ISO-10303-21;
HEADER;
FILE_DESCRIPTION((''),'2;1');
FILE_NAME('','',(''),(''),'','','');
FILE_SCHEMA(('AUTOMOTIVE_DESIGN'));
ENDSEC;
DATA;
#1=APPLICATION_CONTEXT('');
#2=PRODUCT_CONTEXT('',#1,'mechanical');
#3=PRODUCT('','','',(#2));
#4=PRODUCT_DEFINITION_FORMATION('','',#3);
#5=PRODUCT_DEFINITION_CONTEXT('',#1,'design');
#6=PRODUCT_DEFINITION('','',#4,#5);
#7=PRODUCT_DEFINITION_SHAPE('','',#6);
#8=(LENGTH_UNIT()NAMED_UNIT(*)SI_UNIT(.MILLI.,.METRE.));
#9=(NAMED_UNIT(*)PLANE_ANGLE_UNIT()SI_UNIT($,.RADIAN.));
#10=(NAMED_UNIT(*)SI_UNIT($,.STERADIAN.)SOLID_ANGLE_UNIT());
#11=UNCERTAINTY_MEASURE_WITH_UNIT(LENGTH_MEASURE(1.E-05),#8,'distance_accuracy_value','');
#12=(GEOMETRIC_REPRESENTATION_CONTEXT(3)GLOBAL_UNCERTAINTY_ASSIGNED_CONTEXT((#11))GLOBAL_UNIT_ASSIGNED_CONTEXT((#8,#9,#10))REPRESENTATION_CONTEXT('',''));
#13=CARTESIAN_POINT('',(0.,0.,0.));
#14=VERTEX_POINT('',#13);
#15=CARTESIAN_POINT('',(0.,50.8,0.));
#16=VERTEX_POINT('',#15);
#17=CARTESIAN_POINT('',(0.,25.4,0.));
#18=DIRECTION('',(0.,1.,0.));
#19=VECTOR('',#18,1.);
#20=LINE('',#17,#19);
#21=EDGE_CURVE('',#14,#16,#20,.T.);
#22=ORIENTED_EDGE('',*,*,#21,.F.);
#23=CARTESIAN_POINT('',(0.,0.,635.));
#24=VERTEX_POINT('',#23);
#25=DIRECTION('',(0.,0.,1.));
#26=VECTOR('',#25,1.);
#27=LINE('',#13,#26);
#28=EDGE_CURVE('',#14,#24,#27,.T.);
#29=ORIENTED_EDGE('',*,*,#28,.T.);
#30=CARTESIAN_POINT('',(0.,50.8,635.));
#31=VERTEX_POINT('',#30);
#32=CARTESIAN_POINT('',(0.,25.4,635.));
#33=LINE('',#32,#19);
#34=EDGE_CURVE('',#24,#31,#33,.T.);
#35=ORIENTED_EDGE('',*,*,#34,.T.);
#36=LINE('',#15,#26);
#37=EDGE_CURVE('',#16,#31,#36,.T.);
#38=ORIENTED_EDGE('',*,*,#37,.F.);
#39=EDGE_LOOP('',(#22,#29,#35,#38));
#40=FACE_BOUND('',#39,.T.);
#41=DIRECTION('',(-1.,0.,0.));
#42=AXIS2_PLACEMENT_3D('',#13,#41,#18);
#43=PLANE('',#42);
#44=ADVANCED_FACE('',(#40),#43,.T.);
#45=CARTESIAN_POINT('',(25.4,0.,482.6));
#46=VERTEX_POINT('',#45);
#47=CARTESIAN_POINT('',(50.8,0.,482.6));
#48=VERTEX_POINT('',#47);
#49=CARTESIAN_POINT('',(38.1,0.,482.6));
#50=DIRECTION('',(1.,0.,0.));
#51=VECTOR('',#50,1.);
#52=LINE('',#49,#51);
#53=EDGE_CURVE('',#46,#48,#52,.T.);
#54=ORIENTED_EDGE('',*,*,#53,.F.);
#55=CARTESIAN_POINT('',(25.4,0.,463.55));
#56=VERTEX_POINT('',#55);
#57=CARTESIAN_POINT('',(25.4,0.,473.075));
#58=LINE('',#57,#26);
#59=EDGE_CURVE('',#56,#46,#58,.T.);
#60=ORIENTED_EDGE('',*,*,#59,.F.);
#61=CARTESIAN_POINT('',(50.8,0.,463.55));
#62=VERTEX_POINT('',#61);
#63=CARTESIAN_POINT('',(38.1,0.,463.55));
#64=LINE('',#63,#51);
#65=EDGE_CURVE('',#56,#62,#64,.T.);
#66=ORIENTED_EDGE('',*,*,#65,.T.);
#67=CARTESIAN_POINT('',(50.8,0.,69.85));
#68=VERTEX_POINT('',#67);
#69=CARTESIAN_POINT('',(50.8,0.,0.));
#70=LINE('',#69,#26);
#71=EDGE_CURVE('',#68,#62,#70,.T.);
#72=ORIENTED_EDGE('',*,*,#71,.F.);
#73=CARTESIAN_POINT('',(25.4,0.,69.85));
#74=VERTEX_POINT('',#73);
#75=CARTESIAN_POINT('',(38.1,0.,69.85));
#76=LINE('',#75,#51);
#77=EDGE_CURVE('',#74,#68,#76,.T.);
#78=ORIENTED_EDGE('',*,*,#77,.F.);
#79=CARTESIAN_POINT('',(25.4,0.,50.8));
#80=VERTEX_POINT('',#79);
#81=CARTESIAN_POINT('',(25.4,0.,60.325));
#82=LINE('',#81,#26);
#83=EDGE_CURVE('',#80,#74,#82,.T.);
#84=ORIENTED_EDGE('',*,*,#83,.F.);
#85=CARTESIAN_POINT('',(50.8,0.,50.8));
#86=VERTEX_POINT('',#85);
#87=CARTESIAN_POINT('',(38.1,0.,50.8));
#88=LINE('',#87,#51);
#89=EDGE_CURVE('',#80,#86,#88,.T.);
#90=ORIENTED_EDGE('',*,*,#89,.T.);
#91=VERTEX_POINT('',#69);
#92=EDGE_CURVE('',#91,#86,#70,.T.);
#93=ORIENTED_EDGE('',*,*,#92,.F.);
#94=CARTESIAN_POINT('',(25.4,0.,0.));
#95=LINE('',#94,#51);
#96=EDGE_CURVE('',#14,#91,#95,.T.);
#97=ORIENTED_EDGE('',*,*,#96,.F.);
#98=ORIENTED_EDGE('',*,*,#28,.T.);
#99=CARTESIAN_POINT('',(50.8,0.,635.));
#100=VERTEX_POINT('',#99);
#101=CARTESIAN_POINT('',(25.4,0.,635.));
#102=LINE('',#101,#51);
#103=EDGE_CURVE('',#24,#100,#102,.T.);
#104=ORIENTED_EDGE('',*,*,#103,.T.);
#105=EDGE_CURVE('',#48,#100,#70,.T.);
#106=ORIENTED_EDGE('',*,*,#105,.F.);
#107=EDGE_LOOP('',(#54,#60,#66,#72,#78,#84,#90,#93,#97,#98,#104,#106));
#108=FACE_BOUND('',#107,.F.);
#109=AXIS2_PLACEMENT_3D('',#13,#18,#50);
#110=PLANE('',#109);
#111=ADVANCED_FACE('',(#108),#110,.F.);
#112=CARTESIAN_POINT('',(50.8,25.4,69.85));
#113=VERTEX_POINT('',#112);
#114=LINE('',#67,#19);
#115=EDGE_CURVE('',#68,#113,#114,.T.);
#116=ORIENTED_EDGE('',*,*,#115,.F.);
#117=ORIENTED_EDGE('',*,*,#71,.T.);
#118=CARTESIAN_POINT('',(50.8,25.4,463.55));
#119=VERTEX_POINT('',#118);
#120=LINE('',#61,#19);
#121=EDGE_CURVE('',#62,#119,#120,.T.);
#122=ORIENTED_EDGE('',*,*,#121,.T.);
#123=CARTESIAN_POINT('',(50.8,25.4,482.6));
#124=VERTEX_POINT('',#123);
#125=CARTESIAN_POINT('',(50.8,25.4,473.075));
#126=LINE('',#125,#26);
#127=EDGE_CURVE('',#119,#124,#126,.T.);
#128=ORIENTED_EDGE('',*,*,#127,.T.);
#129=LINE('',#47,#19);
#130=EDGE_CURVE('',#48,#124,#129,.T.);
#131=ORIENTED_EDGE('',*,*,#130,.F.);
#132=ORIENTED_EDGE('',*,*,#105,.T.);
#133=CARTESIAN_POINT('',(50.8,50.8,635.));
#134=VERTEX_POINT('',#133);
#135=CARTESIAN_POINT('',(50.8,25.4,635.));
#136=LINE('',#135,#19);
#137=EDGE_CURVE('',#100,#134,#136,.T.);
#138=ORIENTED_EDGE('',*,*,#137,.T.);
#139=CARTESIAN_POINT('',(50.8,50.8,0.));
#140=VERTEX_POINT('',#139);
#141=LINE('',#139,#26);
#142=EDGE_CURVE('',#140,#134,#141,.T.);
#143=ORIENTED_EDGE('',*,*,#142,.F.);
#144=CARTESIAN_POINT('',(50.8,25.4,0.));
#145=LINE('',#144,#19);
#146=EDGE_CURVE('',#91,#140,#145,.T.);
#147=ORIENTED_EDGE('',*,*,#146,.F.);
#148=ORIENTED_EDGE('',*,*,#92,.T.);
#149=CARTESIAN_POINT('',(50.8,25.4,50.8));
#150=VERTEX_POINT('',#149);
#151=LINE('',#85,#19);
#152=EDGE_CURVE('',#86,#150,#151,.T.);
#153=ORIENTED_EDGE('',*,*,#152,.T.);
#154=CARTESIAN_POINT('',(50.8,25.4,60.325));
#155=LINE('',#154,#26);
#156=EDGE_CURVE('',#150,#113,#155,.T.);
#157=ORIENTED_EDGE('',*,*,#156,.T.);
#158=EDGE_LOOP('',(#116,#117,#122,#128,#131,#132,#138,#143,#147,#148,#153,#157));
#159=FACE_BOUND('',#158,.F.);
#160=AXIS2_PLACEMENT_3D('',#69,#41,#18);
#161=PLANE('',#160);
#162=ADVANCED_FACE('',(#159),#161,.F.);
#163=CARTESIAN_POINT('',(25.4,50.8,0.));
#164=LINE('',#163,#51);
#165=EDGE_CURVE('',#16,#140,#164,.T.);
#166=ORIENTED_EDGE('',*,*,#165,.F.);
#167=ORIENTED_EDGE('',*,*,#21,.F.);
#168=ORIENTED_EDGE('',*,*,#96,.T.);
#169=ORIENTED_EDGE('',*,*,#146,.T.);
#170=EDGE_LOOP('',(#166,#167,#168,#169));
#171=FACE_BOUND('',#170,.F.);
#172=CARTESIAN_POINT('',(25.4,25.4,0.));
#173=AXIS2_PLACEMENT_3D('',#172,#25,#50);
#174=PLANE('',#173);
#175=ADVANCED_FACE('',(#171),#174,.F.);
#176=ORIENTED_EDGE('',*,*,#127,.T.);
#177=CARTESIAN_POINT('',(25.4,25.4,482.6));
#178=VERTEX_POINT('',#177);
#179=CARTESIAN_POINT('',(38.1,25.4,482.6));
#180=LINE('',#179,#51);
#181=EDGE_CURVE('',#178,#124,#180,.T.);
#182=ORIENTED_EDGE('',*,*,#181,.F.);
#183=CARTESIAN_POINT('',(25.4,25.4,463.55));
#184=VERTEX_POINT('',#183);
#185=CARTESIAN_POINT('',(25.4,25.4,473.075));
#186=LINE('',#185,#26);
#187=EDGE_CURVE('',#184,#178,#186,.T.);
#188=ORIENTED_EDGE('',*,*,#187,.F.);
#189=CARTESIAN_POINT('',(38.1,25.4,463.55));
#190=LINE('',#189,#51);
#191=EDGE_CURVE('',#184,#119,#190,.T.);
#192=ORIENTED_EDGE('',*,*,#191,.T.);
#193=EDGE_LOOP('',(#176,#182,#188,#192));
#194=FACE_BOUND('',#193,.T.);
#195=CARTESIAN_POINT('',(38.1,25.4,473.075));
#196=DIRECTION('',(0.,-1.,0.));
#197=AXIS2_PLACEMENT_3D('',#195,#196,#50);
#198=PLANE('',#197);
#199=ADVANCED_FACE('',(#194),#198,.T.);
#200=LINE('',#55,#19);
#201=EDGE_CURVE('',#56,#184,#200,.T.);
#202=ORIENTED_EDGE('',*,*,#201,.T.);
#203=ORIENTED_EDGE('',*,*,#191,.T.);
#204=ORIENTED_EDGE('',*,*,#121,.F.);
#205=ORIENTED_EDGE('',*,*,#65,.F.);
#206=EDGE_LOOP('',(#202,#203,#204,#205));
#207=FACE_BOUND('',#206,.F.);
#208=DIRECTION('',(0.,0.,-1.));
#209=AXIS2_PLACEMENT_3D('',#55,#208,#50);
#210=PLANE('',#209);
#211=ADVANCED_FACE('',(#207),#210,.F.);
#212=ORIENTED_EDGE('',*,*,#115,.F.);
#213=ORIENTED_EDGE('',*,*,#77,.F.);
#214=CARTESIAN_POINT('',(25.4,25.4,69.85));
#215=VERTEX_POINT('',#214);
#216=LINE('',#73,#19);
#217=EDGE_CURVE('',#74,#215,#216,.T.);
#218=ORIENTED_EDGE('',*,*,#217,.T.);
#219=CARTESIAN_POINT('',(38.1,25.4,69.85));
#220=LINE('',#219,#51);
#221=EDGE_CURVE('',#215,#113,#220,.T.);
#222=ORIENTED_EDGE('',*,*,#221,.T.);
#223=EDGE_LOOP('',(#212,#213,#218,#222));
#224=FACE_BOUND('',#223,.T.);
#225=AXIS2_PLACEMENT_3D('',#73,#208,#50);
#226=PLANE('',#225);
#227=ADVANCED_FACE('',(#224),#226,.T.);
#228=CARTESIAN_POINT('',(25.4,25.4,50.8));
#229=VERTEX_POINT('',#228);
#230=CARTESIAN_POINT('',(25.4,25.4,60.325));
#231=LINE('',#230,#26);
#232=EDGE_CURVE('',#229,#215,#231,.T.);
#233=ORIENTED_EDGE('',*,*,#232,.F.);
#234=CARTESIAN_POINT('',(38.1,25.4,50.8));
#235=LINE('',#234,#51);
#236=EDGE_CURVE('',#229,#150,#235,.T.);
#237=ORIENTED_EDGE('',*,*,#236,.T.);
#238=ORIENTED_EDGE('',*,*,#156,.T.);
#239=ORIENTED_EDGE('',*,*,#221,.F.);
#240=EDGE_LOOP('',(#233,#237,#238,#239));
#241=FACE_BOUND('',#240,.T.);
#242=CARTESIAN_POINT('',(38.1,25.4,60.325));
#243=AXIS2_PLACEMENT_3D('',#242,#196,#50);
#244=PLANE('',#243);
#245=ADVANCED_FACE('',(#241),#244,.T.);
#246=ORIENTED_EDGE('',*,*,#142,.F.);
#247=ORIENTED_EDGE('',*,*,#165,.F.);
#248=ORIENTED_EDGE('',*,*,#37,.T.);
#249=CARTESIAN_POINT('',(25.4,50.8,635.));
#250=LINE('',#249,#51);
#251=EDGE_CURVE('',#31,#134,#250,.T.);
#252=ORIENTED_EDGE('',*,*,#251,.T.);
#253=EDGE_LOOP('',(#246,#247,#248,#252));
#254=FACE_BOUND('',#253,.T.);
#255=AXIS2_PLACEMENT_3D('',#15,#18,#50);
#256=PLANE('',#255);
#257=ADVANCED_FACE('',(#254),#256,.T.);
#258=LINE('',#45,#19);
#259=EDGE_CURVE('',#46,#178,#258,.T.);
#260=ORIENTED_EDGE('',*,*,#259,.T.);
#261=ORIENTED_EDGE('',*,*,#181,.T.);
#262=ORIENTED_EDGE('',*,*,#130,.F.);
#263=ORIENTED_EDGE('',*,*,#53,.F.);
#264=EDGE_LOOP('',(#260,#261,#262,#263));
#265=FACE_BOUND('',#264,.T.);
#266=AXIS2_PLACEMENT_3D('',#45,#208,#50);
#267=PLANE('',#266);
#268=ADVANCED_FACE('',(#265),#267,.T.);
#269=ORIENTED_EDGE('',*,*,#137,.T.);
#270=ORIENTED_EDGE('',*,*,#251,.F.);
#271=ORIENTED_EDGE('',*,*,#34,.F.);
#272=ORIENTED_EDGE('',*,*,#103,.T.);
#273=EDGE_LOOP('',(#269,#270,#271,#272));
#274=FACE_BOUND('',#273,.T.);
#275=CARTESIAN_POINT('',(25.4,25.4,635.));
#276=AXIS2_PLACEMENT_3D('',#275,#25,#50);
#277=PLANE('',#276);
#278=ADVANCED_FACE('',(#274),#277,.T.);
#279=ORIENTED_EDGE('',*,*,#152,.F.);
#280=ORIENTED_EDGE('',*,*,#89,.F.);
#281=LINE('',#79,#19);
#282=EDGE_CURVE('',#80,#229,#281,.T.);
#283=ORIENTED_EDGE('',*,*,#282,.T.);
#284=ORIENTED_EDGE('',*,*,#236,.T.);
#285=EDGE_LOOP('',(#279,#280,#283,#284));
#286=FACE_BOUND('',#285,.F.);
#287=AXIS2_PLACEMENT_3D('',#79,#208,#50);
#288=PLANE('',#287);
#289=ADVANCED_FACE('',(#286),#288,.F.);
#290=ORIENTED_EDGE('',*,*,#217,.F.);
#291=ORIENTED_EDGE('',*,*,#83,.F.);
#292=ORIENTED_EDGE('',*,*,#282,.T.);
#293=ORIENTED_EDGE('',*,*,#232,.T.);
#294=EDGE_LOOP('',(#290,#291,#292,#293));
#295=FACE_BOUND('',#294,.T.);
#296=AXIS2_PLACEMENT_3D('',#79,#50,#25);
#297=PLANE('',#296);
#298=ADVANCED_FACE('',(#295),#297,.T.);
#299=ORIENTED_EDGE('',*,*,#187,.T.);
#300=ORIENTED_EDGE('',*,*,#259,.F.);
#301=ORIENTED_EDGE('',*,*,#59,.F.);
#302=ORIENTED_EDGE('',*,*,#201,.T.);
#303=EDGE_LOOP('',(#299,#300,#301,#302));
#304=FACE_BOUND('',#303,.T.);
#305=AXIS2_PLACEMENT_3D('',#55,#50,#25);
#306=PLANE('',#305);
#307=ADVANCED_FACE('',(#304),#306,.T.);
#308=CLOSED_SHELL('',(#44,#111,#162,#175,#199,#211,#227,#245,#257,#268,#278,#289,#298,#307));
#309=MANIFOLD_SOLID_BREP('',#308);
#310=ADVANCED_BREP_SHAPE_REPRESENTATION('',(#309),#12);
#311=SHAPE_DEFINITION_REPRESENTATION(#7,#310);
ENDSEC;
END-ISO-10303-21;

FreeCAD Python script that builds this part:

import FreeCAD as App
import Part
import Sketcher
from FreeCAD import Vector
Q = App.Units.Quantity

doc = App.newDocument("Part")
body = doc.addObject("PartDesign::Body", "Body")

# Sketch on XY plane
sketch1 = body.newObject("Sketcher::SketchObject", "Sketch")
sketch1.AttachmentSupport = (doc.getObject("XY_Plane"), [""])
sketch1.MapMode = "FlatFace"
sketch1.addGeometry(Part.LineSegment(Vector(0, 51, 0), Vector(0, 0, 0)), False)
sketch1.addGeometry(Part.LineSegment(Vector(0, 0, 0), Vector(51, 0, 0)), False)
sketch1.addGeometry(Part.LineSegment(Vector(51, 0, 0), Vector(51, 51, 0)), False)
sketch1.addGeometry(Part.LineSegment(Vector(51, 51, 0), Vector(0, 51, 0)), False)
sketch1.addConstraint(Sketcher.Constraint("Coincident", 0, 2, 1, 1))
sketch1.addConstraint(Sketcher.Constraint("Coincident", 1, 2, 2, 1))
sketch1.addConstraint(Sketcher.Constraint("Coincident", 2, 2, 3, 1))
sketch1.addConstraint(Sketcher.Constraint("Coincident", 3, 2, 0, 1))
sketch1.addConstraint(Sketcher.Constraint("Vertical", 0))
sketch1.addConstraint(Sketcher.Constraint("Horizontal", 1))
sketch1.addConstraint(Sketcher.Constraint("Vertical", 2))
sketch1.addConstraint(Sketcher.Constraint("Horizontal", 3))
sketch1.addConstraint(Sketcher.Constraint("Coincident", 0, 2, -1, 1))
sketch1.addConstraint(Sketcher.Constraint("Equal", 3, 0))
sketch1.addConstraint(Sketcher.Constraint("DistanceX", 1, 1, 1, 2, Q("2 in")))
pad1 = body.newObject("PartDesign::Pad", "Pad")
pad1.Profile = sketch1
pad1.Length = Q("25 in")

# Sketch on XZ plane
sketch2 = body.newObject("Sketcher::SketchObject", "Sketch001")
sketch2.AttachmentSupport = (doc.getObject("XZ_Plane"), [""])
sketch2.MapMode = "FlatFace"
sketch2.addGeometry(Part.LineSegment(Vector(25, 70, 0), Vector(25, 51, 0)), False)
sketch2.addGeometry(Part.LineSegment(Vector(25, 51, 0), Vector(51, 51, 0)), False)
sketch2.addGeometry(Part.LineSegment(Vector(51, 51, 0), Vector(51, 70, 0)), False)
sketch2.addGeometry(Part.LineSegment(Vector(51, 70, 0), Vector(25, 70, 0)), False)
sketch2.addGeometry(Part.LineSegment(Vector(25, 483, 0), Vector(25, 464, 0)), False)
sketch2.addGeometry(Part.LineSegment(Vector(25, 464, 0), Vector(51, 464, 0)), False)
sketch2.addGeometry(Part.LineSegment(Vector(51, 464, 0), Vector(51, 483, 0)), False)
sketch2.addGeometry(Part.LineSegment(Vector(51, 483, 0), Vector(25, 483, 0)), False)
sketch2.addConstraint(Sketcher.Constraint("Coincident", 0, 2, 1, 1))
sketch2.addConstraint(Sketcher.Constraint("Coincident", 1, 2, 2, 1))
sketch2.addConstraint(Sketcher.Constraint("Coincident", 2, 2, 3, 1))
sketch2.addConstraint(Sketcher.Constraint("Coincident", 3, 2, 0, 1))
sketch2.addConstraint(Sketcher.Constraint("Coincident", 4, 2, 5, 1))
sketch2.addConstraint(Sketcher.Constraint("Coincident", 5, 2, 6, 1))
sketch2.addConstraint(Sketcher.Constraint("Coincident", 6, 2, 7, 1))
sketch2.addConstraint(Sketcher.Constraint("Coincident", 7, 2, 4, 1))
sketch2.addConstraint(Sketcher.Constraint("Vertical", 0))
sketch2.addConstraint(Sketcher.Constraint("Horizontal", 1))
sketch2.addConstraint(Sketcher.Constraint("Vertical", 2))
sketch2.addConstraint(Sketcher.Constraint("Horizontal", 3))
sketch2.addConstraint(Sketcher.Constraint("Vertical", 4))
sketch2.addConstraint(Sketcher.Constraint("Horizontal", 5))
sketch2.addConstraint(Sketcher.Constraint("Vertical", 6))
sketch2.addConstraint(Sketcher.Constraint("Horizontal", 7))
sketch2.addConstraint(Sketcher.Constraint("Vertical", 3, 2, 4, 2))
sketch2.addConstraint(Sketcher.Constraint("Vertical", 2, 2, 5, 2))
sketch2.addConstraint(Sketcher.Constraint("Equal", 2, 4))
sketch2.addConstraint(Sketcher.Constraint("DistanceX", 1, 1, 1, 2, Q("1 in")))
sketch2.addConstraint(Sketcher.Constraint("DistanceX", -1, 1, 0, 2, Q("1 in")))
sketch2.addConstraint(Sketcher.Constraint("DistanceY", -1, 1, 0, 2, Q("2 in")))
sketch2.addConstraint(Sketcher.Constraint("DistanceY", -1, 1, 6, 2, Q("19 in")))
sketch2.addConstraint(Sketcher.Constraint("DistanceY", 0, 2, 0, 1, Q("0.75 in")))
pocket1 = body.newObject("PartDesign::Pocket", "Pocket")
pocket1.Profile = sketch2
pocket1.Length = Q("1 in")

doc.recompute()
